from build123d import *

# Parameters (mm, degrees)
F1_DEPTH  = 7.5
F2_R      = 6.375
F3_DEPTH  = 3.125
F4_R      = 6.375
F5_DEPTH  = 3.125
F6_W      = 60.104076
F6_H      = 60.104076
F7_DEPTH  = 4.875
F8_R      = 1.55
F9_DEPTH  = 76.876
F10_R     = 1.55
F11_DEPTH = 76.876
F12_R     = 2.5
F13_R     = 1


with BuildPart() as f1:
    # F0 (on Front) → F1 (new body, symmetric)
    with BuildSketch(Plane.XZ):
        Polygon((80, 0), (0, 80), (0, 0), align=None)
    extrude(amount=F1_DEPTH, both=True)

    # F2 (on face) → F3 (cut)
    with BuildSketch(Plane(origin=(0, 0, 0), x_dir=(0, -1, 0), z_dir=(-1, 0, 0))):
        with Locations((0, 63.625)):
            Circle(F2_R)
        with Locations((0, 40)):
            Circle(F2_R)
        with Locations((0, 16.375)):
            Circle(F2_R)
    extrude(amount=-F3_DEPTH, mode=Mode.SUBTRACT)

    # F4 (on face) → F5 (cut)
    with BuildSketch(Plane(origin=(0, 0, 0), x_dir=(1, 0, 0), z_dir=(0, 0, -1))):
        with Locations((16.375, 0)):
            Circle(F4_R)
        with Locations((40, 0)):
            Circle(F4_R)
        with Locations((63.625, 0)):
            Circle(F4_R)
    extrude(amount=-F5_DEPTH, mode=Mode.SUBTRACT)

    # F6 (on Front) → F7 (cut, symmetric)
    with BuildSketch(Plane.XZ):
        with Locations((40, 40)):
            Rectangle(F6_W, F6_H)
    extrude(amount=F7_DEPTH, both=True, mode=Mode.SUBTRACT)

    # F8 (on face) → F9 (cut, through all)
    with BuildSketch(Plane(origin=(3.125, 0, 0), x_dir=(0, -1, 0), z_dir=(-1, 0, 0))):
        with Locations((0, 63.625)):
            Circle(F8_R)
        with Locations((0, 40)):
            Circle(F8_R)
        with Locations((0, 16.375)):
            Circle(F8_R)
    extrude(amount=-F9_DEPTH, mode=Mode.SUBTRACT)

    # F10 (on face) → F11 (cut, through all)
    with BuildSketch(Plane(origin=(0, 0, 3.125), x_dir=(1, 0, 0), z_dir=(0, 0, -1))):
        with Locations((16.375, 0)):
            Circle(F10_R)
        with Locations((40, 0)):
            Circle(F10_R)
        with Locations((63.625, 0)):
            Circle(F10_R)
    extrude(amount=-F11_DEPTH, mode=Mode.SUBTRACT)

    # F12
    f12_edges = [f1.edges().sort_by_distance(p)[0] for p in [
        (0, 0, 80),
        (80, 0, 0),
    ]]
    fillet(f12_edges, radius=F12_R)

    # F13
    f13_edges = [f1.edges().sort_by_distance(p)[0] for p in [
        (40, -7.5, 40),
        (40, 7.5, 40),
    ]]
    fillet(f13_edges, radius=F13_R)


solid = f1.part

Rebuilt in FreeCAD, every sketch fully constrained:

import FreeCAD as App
import Part
import Sketcher


def edges_at(feature, points):
    """Names of the edges that pass closest to the given points."""
    edges = feature.Shape.Edges
    near = lambda p: min(range(len(edges)), key=lambda i: edges[i].distToShape(Part.Vertex(*p))[0])
    return sorted({f"Edge{near(p) + 1}" for p in points})


def add_polygon(sketch, points):
    """Adds a closed chain of lines whose ends are joined by coincident constraints."""
    first, n = sketch.GeometryCount, len(points)
    for a, b in zip(points, points[1:] + points[:1]):
        sketch.addGeometry(Part.LineSegment(App.Vector(*a, 0), App.Vector(*b, 0)), False)
    for i in range(n):
        sketch.addConstraint(Sketcher.Constraint("Coincident", first + i, 2, first + (i + 1) % n, 1))

doc = App.newDocument("Part")
body = doc.addObject("PartDesign::Body", "Body")

sketch1 = body.newObject("Sketcher::SketchObject", "Sketch")
sketch1.AttachmentSupport = (doc.getObject("XZ_Plane"), [""])
sketch1.MapMode = "FlatFace"
add_polygon(sketch1, [(80, 0), (0, 80), (0, 0)])
sketch1.addConstraint([
    Sketcher.Constraint("Vertical", 1),
    Sketcher.Constraint("Horizontal", 2),
    Sketcher.Constraint("Coincident", 1, 2, -1, 1),
    Sketcher.Constraint("Equal", 2, 1),
    Sketcher.Constraint("DistanceX", 2, 1, 2, 2, 80.0),
])
pad1 = body.newObject("PartDesign::Pad", "Pad")
pad1.Profile = sketch1
pad1.Length = 15
pad1.Midplane = True

sketch2 = body.newObject("Sketcher::SketchObject", "Sketch001")
sketch2.AttachmentSupport = (doc.getObject("YZ_Plane"), [""])
sketch2.MapMode = "FlatFace"
sketch2.addGeometry([
    Part.Circle(App.Vector(0, 64, 0), App.Vector(0, 0, 1), 6),
    Part.Circle(App.Vector(0, 40, 0), App.Vector(0, 0, 1), 6),
    Part.Circle(App.Vector(0, 16, 0), App.Vector(0, 0, 1), 6),
], False)
sketch2.addConstraint([
    Sketcher.Constraint("Equal", 0, 1),
    Sketcher.Constraint("Equal", 1, 2),
    Sketcher.Constraint("PointOnObject", 0, 3, -2),
    Sketcher.Constraint("PointOnObject", 1, 3, -2),
    Sketcher.Constraint("PointOnObject", 2, 3, -2),
    Sketcher.Constraint("Diameter", 0, 12.75),
    Sketcher.Constraint("DistanceY", -1, 1, 1, 3, 40.0),
    Sketcher.Constraint("DistanceY", 2, 3, 0, 3, 47.25),
    Sketcher.Constraint("DistanceY", -1, 1, 0, 3, 63.625),
])
pocket1 = body.newObject("PartDesign::Pocket", "Pocket")
pocket1.Profile = sketch2
pocket1.Length = 3.125
pocket1.Reversed = True

sketch3 = body.newObject("Sketcher::SketchObject", "Sketch002")
sketch3.AttachmentSupport = (doc.getObject("XY_Plane"), [""])
sketch3.MapMode = "FlatFace"
sketch3.addGeometry([
    Part.Circle(App.Vector(16, 0, 0), App.Vector(0, 0, 1), 6),
    Part.Circle(App.Vector(40, 0, 0), App.Vector(0, 0, 1), 6),
    Part.Circle(App.Vector(64, 0, 0), App.Vector(0, 0, 1), 6),
], False)
sketch3.addConstraint([
    Sketcher.Constraint("Equal", 0, 1),
    Sketcher.Constraint("Equal", 1, 2),
    Sketcher.Constraint("PointOnObject", 0, 3, -1),
    Sketcher.Constraint("PointOnObject", 1, 3, -1),
    Sketcher.Constraint("PointOnObject", 2, 3, -1),
    Sketcher.Constraint("Diameter", 0, 12.75),
    Sketcher.Constraint("DistanceX", -1, 1, 1, 3, 40.0),
    Sketcher.Constraint("DistanceX", 0, 3, 2, 3, 47.25),
    Sketcher.Constraint("DistanceX", -1, 1, 0, 3, 16.375),
])
pocket2 = body.newObject("PartDesign::Pocket", "Pocket001")
pocket2.Profile = sketch3
pocket2.Length = 3.125
pocket2.Reversed = True

sketch4 = body.newObject("Sketcher::SketchObject", "Sketch003")
sketch4.AttachmentSupport = (doc.getObject("XZ_Plane"), [""])
sketch4.MapMode = "FlatFace"
add_polygon(sketch4, [(10, 70), (10, 10), (70, 10), (70, 70)])
sketch4.addConstraint([
    Sketcher.Constraint("Vertical", 0),
    Sketcher.Constraint("Horizontal", 1),
    Sketcher.Constraint("Vertical", 2),
    Sketcher.Constraint("Horizontal", 3),
    Sketcher.Constraint("Equal", 3, 0),
    Sketcher.Constraint("DistanceX", 1, 1, 1, 2, 60.104076),
    Sketcher.Constraint("DistanceX", -1, 1, 0, 2, 9.947962),
    Sketcher.Constraint("DistanceY", -1, 1, 0, 2, 9.947962),
])
pocket3 = body.newObject("PartDesign::Pocket", "Pocket002")
pocket3.Profile = sketch4
pocket3.Length = 9.75
pocket3.Midplane = True

sketch5 = body.newObject("Sketcher::SketchObject", "Sketch004")
sketch5.AttachmentSupport = (doc.getObject("YZ_Plane"), [""])
sketch5.MapMode = "FlatFace"
sketch5.AttachmentOffset = App.Placement(App.Vector(0, 0, 3.125), App.Rotation())
sketch5.addGeometry([
    Part.Circle(App.Vector(0, 63.6, 0), App.Vector(0, 0, 1), 1.6),
    Part.Circle(App.Vector(0, 40, 0), App.Vector(0, 0, 1), 1.6),
    Part.Circle(App.Vector(0, 16.4, 0), App.Vector(0, 0, 1), 1.6),
], False)
sketch5.addConstraint([
    Sketcher.Constraint("Equal", 0, 1),
    Sketcher.Constraint("Equal", 1, 2),
    Sketcher.Constraint("PointOnObject", 0, 3, -2),
    Sketcher.Constraint("PointOnObject", 1, 3, -2),
    Sketcher.Constraint("PointOnObject", 2, 3, -2),
    Sketcher.Constraint("Diameter", 0, 3.1),
    Sketcher.Constraint("DistanceY", -1, 1, 1, 3, 40.0),
    Sketcher.Constraint("DistanceY", 2, 3, 0, 3, 47.25),
    Sketcher.Constraint("DistanceY", -1, 1, 0, 3, 63.625),
])
pocket4 = body.newObject("PartDesign::Pocket", "Pocket003")
pocket4.Profile = sketch5
pocket4.Type = "ThroughAll"
pocket4.Reversed = True

sketch6 = body.newObject("Sketcher::SketchObject", "Sketch005")
sketch6.AttachmentSupport = (doc.getObject("XY_Plane"), [""])
sketch6.MapMode = "FlatFace"
sketch6.AttachmentOffset = App.Placement(App.Vector(0, 0, 3.125), App.Rotation())
sketch6.addGeometry([
    Part.Circle(App.Vector(16.4, 0, 0), App.Vector(0, 0, 1), 1.6),
    Part.Circle(App.Vector(40, 0, 0), App.Vector(0, 0, 1), 1.6),
    Part.Circle(App.Vector(63.6, 0, 0), App.Vector(0, 0, 1), 1.6),
], False)
sketch6.addConstraint([
    Sketcher.Constraint("Equal", 0, 1),
    Sketcher.Constraint("Equal", 1, 2),
    Sketcher.Constraint("PointOnObject", 0, 3, -1),
    Sketcher.Constraint("PointOnObject", 1, 3, -1),
    Sketcher.Constraint("PointOnObject", 2, 3, -1),
    Sketcher.Constraint("Diameter", 0, 3.1),
    Sketcher.Constraint("DistanceX", -1, 1, 1, 3, 40.0),
    Sketcher.Constraint("DistanceX", 0, 3, 2, 3, 47.25),
    Sketcher.Constraint("DistanceX", -1, 1, 0, 3, 16.375),
])
pocket5 = body.newObject("PartDesign::Pocket", "Pocket004")
pocket5.Profile = sketch6
pocket5.Type = "ThroughAll"
pocket5.Reversed = True
doc.recompute()

fillet = body.newObject("PartDesign::Fillet", "Fillet")
fillet.Base = (pocket5, edges_at(pocket5, [(0, 0, 80), (80, 0, 0)]))
fillet.Radius = 2.5
doc.recompute()

fillet2 = body.newObject("PartDesign::Fillet", "Fillet001")
fillet2.Base = (fillet, edges_at(fillet, [(40, -7.5, 40), (40, 7.5, 40)]))
fillet2.Radius = 1

doc.recompute()
